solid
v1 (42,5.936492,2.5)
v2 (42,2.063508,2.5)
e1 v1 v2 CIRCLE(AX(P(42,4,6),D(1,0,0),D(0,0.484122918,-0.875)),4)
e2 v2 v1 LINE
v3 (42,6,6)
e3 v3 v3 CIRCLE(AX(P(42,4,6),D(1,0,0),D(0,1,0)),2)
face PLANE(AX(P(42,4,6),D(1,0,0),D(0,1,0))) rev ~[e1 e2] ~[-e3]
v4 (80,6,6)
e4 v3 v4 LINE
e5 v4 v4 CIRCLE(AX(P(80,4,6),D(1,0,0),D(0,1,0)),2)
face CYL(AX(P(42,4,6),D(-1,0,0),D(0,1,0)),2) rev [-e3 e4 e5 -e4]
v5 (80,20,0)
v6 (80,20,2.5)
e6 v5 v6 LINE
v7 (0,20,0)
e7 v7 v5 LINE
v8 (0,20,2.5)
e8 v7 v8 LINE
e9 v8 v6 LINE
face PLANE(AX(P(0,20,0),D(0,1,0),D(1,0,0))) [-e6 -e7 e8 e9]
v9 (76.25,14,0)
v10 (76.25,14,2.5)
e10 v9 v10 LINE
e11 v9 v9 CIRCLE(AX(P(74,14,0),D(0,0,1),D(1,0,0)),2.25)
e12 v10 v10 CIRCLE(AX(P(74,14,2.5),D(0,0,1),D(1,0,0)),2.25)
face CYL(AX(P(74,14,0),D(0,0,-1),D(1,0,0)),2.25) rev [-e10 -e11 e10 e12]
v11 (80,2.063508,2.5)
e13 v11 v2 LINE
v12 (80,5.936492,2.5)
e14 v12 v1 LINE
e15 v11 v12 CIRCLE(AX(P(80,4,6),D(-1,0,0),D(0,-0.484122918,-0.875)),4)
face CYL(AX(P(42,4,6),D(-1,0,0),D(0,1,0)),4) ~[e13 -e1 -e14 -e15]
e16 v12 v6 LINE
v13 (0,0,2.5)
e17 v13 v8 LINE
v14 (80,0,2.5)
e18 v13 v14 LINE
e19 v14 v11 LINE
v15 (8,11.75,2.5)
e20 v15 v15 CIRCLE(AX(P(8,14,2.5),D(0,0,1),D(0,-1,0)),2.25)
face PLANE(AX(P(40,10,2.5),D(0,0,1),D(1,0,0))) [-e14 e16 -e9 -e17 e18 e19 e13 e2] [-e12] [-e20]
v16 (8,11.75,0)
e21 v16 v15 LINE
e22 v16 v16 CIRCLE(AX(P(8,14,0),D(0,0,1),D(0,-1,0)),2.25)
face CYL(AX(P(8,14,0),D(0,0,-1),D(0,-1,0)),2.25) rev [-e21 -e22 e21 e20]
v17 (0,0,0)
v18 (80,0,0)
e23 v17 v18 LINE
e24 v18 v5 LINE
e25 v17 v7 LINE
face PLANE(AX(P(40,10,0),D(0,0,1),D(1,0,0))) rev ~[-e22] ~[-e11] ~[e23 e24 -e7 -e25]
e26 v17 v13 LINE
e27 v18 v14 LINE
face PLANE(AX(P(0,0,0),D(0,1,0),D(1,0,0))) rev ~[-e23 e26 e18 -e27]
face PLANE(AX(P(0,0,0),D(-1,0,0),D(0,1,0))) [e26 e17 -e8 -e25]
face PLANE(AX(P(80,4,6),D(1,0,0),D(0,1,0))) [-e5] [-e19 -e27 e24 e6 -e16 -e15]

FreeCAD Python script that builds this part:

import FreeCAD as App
import Part
import Sketcher
Q = App.Units.Quantity

doc = App.newDocument("Part")
params = doc.addObject("Spreadsheet::Sheet", "Params")
for row, (alias, value) in enumerate([
    ("sketch1_width", "80 mm"),
    ("sketch1_height", "20 mm"),
    ("pad1_length", "2.5 mm"),
    ("sketch2_diameter", "8 mm"),
    ("pad2_length", "38 mm"),
    ("sketch3_diameter", "4 mm"),
    ("pocket1_length", "38 mm"),
    ("sketch4_diameter", "4.5 mm"),
    ("pocket2_length", "2.5 mm"),
    ("sketch5_diameter", "4.5 mm"),
    ("pocket3_length", "2.5 mm"),
], start=1):
    params.set(f"A{row}", alias)
    params.set(f"B{row}", "=" + value)
    params.setAlias(f"B{row}", alias)

body = doc.addObject("PartDesign::Body", "Body")

sketch1 = body.newObject("Sketcher::SketchObject", "Sketch")
sketch1.AttachmentSupport = (doc.getObject("XY_Plane"), [""])
sketch1.MapMode = "FlatFace"
sketch1.addGeometry([
    Part.LineSegment(App.Vector(0, 20, 0), App.Vector(0, 0, 0)),
    Part.LineSegment(App.Vector(0, 0, 0), App.Vector(80, 0, 0)),
    Part.LineSegment(App.Vector(80, 0, 0), App.Vector(80, 20, 0)),
    Part.LineSegment(App.Vector(80, 20, 0), App.Vector(0, 20, 0)),
], False)
sketch1.addConstraint([
    Sketcher.Constraint("Coincident", 0, 2, 1, 1),
    Sketcher.Constraint("Coincident", 1, 2, 2, 1),
    Sketcher.Constraint("Coincident", 2, 2, 3, 1),
    Sketcher.Constraint("Coincident", 3, 2, 0, 1),
    Sketcher.Constraint("Vertical", 0),
    Sketcher.Constraint("Horizontal", 1),
    Sketcher.Constraint("Vertical", 2),
    Sketcher.Constraint("Horizontal", 3),
    Sketcher.Constraint("Coincident", 0, 2, -1, 1),
    Sketcher.Constraint("DistanceX", 1, 1, 1, 2, Q("80 mm")),
    Sketcher.Constraint("DistanceY", 0, 2, 0, 1, Q("20 mm")),
])
sketch1.setExpression("Constraints[9]", "Params.sketch1_width")
sketch1.setExpression("Constraints[10]", "Params.sketch1_height")
pad1 = body.newObject("PartDesign::Pad", "Pad")
pad1.Profile = sketch1
pad1.setExpression("Length", "Params.pad1_length")

sketch2 = body.newObject("Sketcher::SketchObject", "Sketch001")
sketch2.AttachmentSupport = (doc.getObject("YZ_Plane"), [""])
sketch2.MapMode = "FlatFace"
sketch2.AttachmentOffset = App.Placement(App.Vector(0, 0, 42), App.Rotation())
sketch2.addGeometry(Part.Circle(App.Vector(4, 6, 0), App.Vector(0, 0, 1), 4), False)
sketch2.addConstraint([
    Sketcher.Constraint("Diameter", 0, Q("8 mm")),
    Sketcher.Constraint("DistanceX", -1, 1, 0, 3, Q("4 mm")),
    Sketcher.Constraint("DistanceY", -1, 1, 0, 3, Q("6 mm")),
])
sketch2.setExpression("Constraints[0]", "Params.sketch2_diameter")
pad2 = body.newObject("PartDesign::Pad", "Pad001")
pad2.Profile = sketch2
pad2.setExpression("Length", "Params.pad2_length")

sketch3 = body.newObject("Sketcher::SketchObject", "Sketch002")
sketch3.AttachmentSupport = (doc.getObject("YZ_Plane"), [""])
sketch3.MapMode = "FlatFace"
sketch3.AttachmentOffset = App.Placement(App.Vector(0, 0, 42), App.Rotation())
sketch3.addGeometry(Part.Circle(App.Vector(4, 6, 0), App.Vector(0, 0, 1), 2), False)
sketch3.addConstraint([
    Sketcher.Constraint("Diameter", 0, Q("4 mm")),
    Sketcher.Constraint("DistanceX", -1, 1, 0, 3, Q("4 mm")),
    Sketcher.Constraint("DistanceY", -1, 1, 0, 3, Q("6 mm")),
])
sketch3.setExpression("Constraints[0]", "Params.sketch3_diameter")
pocket1 = body.newObject("PartDesign::Pocket", "Pocket")
pocket1.Profile = sketch3
pocket1.setExpression("Length", "Params.pocket1_length")
pocket1.Reversed = True

sketch4 = body.newObject("Sketcher::SketchObject", "Sketch003")
sketch4.AttachmentSupport = (doc.getObject("XY_Plane"), [""])
sketch4.MapMode = "FlatFace"
sketch4.addGeometry(Part.Circle(App.Vector(8, 14, 0), App.Vector(0, 0, 1), 2.25), False)
sketch4.addConstraint([
    Sketcher.Constraint("Diameter", 0, Q("4.5 mm")),
    Sketcher.Constraint("DistanceX", -1, 1, 0, 3, Q("8 mm")),
    Sketcher.Constraint("DistanceY", -1, 1, 0, 3, Q("14 mm")),
])
sketch4.setExpression("Constraints[0]", "Params.sketch4_diameter")
pocket2 = body.newObject("PartDesign::Pocket", "Pocket001")
pocket2.Profile = sketch4
pocket2.setExpression("Length", "Params.pocket2_length")
pocket2.Reversed = True

sketch5 = body.newObject("Sketcher::SketchObject", "Sketch004")
sketch5.AttachmentSupport = (doc.getObject("XY_Plane"), [""])
sketch5.MapMode = "FlatFace"
sketch5.addGeometry(Part.Circle(App.Vector(74, 14, 0), App.Vector(0, 0, 1), 2.25), False)
sketch5.addConstraint([
    Sketcher.Constraint("Diameter", 0, Q("4.5 mm")),
    Sketcher.Constraint("DistanceX", -1, 1, 0, 3, Q("74 mm")),
    Sketcher.Constraint("DistanceY", -1, 1, 0, 3, Q("14 mm")),
])
sketch5.setExpression("Constraints[0]", "Params.sketch5_diameter")
pocket3 = body.newObject("PartDesign::Pocket", "Pocket002")
pocket3.Profile = sketch5
pocket3.setExpression("Length", "Params.pocket3_length")
pocket3.Reversed = True

doc.recompute()
